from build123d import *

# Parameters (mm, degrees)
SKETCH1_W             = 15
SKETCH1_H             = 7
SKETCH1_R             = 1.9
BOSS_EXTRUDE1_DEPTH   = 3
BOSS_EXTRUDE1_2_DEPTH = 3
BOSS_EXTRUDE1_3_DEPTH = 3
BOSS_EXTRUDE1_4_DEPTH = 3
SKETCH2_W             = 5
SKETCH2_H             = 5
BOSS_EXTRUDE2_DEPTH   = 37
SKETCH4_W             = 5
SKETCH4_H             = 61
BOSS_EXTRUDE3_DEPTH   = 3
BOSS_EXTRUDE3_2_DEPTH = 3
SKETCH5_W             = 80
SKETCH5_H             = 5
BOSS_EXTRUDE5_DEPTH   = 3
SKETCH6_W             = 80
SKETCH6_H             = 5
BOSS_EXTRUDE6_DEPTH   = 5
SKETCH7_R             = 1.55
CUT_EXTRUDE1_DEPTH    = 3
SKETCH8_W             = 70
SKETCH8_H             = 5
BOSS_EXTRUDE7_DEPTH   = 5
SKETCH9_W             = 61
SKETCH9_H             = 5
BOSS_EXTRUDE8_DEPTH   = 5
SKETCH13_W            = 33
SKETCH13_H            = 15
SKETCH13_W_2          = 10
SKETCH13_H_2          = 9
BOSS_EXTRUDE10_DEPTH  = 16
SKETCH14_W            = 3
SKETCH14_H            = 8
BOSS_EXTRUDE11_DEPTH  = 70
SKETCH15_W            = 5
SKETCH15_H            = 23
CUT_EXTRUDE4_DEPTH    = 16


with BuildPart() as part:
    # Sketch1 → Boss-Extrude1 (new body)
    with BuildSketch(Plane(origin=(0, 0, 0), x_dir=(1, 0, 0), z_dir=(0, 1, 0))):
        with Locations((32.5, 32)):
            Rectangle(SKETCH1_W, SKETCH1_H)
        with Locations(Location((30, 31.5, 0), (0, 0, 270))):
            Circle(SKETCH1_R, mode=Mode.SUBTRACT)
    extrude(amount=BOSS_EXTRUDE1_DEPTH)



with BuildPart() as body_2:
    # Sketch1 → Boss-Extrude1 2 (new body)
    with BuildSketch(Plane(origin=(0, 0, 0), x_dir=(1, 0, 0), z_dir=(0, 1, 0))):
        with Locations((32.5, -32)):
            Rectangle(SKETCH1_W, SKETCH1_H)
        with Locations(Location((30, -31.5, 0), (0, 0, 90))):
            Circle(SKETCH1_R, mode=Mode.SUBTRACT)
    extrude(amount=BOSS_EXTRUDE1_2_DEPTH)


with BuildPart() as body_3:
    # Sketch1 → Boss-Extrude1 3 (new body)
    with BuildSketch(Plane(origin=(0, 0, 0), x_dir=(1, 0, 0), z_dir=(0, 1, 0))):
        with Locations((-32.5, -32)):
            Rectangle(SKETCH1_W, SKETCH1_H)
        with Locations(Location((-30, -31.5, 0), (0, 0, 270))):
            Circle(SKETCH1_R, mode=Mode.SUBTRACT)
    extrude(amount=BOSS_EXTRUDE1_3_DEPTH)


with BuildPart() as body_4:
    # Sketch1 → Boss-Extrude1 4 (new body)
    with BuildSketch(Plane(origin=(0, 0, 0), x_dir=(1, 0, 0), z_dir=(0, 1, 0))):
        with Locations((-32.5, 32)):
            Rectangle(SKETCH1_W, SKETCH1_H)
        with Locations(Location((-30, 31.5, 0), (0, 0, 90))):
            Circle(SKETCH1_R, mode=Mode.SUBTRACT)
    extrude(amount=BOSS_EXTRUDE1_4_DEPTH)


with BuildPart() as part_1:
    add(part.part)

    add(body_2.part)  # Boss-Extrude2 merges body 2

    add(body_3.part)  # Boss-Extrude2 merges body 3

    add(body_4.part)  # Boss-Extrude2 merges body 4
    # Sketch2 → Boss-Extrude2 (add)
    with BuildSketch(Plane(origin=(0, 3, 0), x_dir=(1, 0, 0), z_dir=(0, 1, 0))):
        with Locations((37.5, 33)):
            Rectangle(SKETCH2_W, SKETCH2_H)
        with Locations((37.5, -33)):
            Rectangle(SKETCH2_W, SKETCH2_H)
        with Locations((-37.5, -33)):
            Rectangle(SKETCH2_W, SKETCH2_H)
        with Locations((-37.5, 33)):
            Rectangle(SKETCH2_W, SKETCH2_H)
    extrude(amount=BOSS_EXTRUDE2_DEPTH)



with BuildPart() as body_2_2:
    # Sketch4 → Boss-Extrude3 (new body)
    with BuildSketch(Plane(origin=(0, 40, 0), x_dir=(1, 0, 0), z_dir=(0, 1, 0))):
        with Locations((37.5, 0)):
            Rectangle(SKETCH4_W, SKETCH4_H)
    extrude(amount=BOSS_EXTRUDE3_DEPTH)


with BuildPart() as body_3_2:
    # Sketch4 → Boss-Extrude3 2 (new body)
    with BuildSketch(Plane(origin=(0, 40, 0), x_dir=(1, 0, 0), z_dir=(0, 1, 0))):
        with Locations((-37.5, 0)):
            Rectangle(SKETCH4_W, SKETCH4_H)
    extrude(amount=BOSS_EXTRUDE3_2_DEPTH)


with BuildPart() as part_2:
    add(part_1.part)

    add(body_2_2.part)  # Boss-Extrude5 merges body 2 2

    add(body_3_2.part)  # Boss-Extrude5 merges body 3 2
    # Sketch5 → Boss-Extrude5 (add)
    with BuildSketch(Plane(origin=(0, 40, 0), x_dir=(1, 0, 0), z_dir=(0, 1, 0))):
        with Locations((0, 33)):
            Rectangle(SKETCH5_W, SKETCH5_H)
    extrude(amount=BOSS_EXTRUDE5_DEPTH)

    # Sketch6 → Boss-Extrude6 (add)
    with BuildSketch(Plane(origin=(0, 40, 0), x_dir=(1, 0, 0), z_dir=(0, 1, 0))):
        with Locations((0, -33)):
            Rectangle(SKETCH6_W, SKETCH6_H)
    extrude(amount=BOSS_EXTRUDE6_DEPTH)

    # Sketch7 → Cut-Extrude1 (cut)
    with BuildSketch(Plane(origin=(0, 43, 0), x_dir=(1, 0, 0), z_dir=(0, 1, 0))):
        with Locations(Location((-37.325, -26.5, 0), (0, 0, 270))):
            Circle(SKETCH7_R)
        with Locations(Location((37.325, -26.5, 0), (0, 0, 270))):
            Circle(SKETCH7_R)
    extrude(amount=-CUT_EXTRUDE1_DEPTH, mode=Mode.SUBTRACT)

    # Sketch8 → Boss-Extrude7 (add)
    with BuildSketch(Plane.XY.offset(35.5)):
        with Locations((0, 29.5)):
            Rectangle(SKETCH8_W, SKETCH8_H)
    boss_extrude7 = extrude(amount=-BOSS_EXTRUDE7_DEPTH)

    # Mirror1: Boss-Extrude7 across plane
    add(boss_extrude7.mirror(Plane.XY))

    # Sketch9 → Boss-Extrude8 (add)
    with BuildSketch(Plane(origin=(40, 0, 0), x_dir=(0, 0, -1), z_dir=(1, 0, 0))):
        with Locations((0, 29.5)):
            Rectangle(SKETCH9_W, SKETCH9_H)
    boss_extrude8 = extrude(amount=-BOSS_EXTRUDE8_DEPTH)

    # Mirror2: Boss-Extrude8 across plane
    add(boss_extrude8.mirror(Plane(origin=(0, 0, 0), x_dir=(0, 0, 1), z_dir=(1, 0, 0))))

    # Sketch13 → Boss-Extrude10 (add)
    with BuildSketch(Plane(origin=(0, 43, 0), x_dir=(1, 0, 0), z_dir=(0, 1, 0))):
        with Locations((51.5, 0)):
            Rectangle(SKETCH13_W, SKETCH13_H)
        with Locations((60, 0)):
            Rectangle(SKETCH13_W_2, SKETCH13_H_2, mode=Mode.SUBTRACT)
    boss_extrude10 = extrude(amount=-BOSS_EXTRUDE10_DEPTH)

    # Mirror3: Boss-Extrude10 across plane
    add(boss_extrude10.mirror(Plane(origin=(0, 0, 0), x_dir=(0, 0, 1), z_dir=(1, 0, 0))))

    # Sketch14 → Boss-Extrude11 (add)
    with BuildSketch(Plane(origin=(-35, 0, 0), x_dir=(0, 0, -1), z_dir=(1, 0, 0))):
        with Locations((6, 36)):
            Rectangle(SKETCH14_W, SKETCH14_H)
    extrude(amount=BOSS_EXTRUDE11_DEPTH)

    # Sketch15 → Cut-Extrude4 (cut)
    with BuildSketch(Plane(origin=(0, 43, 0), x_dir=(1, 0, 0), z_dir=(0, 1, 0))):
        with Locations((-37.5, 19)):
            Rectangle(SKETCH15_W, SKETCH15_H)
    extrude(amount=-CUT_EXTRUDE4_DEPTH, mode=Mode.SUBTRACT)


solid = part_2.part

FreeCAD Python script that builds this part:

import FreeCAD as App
import Part
import Sketcher

V = App.Vector


def add_polygon(sketch, points):
    """Adds a closed chain of lines whose ends are joined by coincident constraints."""
    first, n = sketch.GeometryCount, len(points)
    for a, b in zip(points, points[1:] + points[:1]):
        sketch.addGeometry(Part.LineSegment(App.Vector(*a, 0), App.Vector(*b, 0)), False)
    for i in range(n):
        sketch.addConstraint(Sketcher.Constraint("Coincident", first + i, 2, first + (i + 1) % n, 1))

doc = App.newDocument("Part")
params = doc.addObject("Spreadsheet::Sheet", "Params")
for row, (alias, value) in enumerate([
    ("sketch1_diameter", "3.8 mm"),
    ("sketch1_width", "15 mm"),
    ("sketch1_height", "7 mm"),
    ("pad1_length", "3 mm"),
    ("sketch2_diameter", "3.8 mm"),
    ("sketch2_width", "15 mm"),
    ("sketch2_height", "7 mm"),
    ("pad2_length", "3 mm"),
    ("sketch3_diameter", "3.8 mm"),
    ("sketch3_width", "15 mm"),
    ("sketch3_height", "7 mm"),
    ("pad3_length", "3 mm"),
    ("sketch4_diameter", "3.8 mm"),
    ("sketch4_width", "15 mm"),
    ("sketch4_height", "7 mm"),
    ("pad4_length", "3 mm"),
    ("sketch5_width", "5 mm"),
    ("pad5_length", "37 mm"),
    ("sketch6_width", "5 mm"),
    ("sketch6_height", "61 mm"),
    ("pad6_length", "3 mm"),
    ("sketch7_width", "5 mm"),
    ("sketch7_height", "61 mm"),
    ("pad7_length", "3 mm"),
    ("sketch8_width", "80 mm"),
    ("sketch8_height", "5 mm"),
    ("pad8_length", "3 mm"),
    ("sketch9_width", "80 mm"),
    ("sketch9_height", "5 mm"),
    ("pad9_length", "5 mm"),
    ("sketch10_diameter", "3.1 mm"),
    ("pocket1_length", "3 mm"),
    ("sketch11_width", "70 mm"),
    ("sketch11_height", "5 mm"),
    ("pad10_length", "5 mm"),
    ("sketch12_width", "5 mm"),
    ("sketch12_height", "61 mm"),
    ("pad11_length", "5 mm"),
    ("sketch13_width", "33 mm"),
    ("sketch13_width2", "10 mm"),
    ("sketch13_height", "15 mm"),
    ("sketch13_height2", "9 mm"),
    ("pad12_length", "16 mm"),
    ("sketch14_width", "8 mm"),
    ("sketch14_height", "3 mm"),
    ("pad13_length", "70 mm"),
    ("sketch15_width", "5 mm"),
    ("sketch15_height", "23 mm"),
    ("pocket2_length", "16 mm"),
], start=1):
    params.set(f"A{row}", alias)
    params.set(f"B{row}", "=" + value)
    params.setAlias(f"B{row}", alias)

body = doc.addObject("PartDesign::Body", "Body")

# Sketch on XZ plane
sketch1 = body.newObject("Sketcher::SketchObject", "Sketch")
sketch1.AttachmentSupport = (doc.getObject("XZ_Plane"), [""])
sketch1.MapMode = "FlatFace"
add_polygon(sketch1, [(25, -35.5), (25, -28.5), (40, -28.5), (40, -35.5)])  # lines 0-3
sketch1.addGeometry(Part.Circle(V(30, -31.5, 0), V(0, 0, 1), 1.9), False)  # 4
sketch1.addConstraint(Sketcher.Constraint("Vertical", 0))
sketch1.addConstraint(Sketcher.Constraint("Horizontal", 1))
sketch1.addConstraint(Sketcher.Constraint("Vertical", 2))
sketch1.addConstraint(Sketcher.Constraint("Horizontal", 3))
sketch1.addConstraint(Sketcher.Constraint("Diameter", 4, 3.8))
sketch1.addConstraint(Sketcher.Constraint("DistanceX", 1, 1, 1, 2, 15.0))
sketch1.addConstraint(Sketcher.Constraint("DistanceY", 0, 1, 0, 2, 7.0))
sketch1.addConstraint(Sketcher.Constraint("DistanceX", -1, 1, 4, 3, 30.0))
sketch1.addConstraint(Sketcher.Constraint("DistanceX", -1, 1, 0, 2, 25.0))
sketch1.addConstraint(Sketcher.Constraint("DistanceY", 4, 3, 0, 2, 3.0))
sketch1.addConstraint(Sketcher.Constraint("DistanceY", 4, 3, -1, 1, 31.5))
sketch1.setExpression("Constraints[8]", "Params.sketch1_diameter")
sketch1.setExpression("Constraints[9]", "Params.sketch1_width")
sketch1.setExpression("Constraints[10]", "Params.sketch1_height")
pad1 = body.newObject("PartDesign::Pad", "Pad")
pad1.Profile = sketch1
pad1.setExpression("Length", "Params.pad1_length")
pad1.Reversed = True
body2 = doc.addObject("PartDesign::Body", "Body001")

# Sketch on XZ plane
sketch2 = body2.newObject("Sketcher::SketchObject", "Sketch001")
sketch2.AttachmentSupport = (doc.getObject("XZ_Plane001"), [""])
sketch2.MapMode = "FlatFace"
add_polygon(sketch2, [(25, 28.5), (25, 35.5), (40, 35.5), (40, 28.5)])  # lines 0-3
sketch2.addGeometry(Part.Circle(V(30, 31.5, 0), V(0, 0, 1), 1.9), False)  # 4
sketch2.addConstraint(Sketcher.Constraint("Vertical", 0))
sketch2.addConstraint(Sketcher.Constraint("Horizontal", 1))
sketch2.addConstraint(Sketcher.Constraint("Vertical", 2))
sketch2.addConstraint(Sketcher.Constraint("Horizontal", 3))
sketch2.addConstraint(Sketcher.Constraint("Diameter", 4, 3.8))
sketch2.addConstraint(Sketcher.Constraint("DistanceX", 1, 1, 1, 2, 15.0))
sketch2.addConstraint(Sketcher.Constraint("DistanceY", 0, 1, 0, 2, 7.0))
sketch2.addConstraint(Sketcher.Constraint("DistanceX", -1, 1, 4, 3, 30.0))
sketch2.addConstraint(Sketcher.Constraint("DistanceX", -1, 1, 0, 2, 25.0))
sketch2.addConstraint(Sketcher.Constraint("DistanceY", 4, 3, 0, 2, 4.0))
sketch2.addConstraint(Sketcher.Constraint("DistanceY", -1, 1, 4, 3, 31.5))
sketch2.setExpression("Constraints[8]", "Params.sketch2_diameter")
sketch2.setExpression("Constraints[9]", "Params.sketch2_width")
sketch2.setExpression("Constraints[10]", "Params.sketch2_height")
pad2 = body2.newObject("PartDesign::Pad", "Pad001")
pad2.Profile = sketch2
pad2.setExpression("Length", "Params.pad2_length")
pad2.Reversed = True
body3 = doc.addObject("PartDesign::Body", "Body002")

# Sketch on XZ plane
sketch3 = body3.newObject("Sketcher::SketchObject", "Sketch002")
sketch3.AttachmentSupport = (doc.getObject("XZ_Plane002"), [""])
sketch3.MapMode = "FlatFace"
add_polygon(sketch3, [(-40, 28.5), (-40, 35.5), (-25, 35.5), (-25, 28.5)])  # lines 0-3
sketch3.addGeometry(Part.Circle(V(-30, 31.5, 0), V(0, 0, 1), 1.9), False)  # 4
sketch3.addConstraint(Sketcher.Constraint("Vertical", 0))
sketch3.addConstraint(Sketcher.Constraint("Horizontal", 1))
sketch3.addConstraint(Sketcher.Constraint("Vertical", 2))
sketch3.addConstraint(Sketcher.Constraint("Horizontal", 3))
sketch3.addConstraint(Sketcher.Constraint("Diameter", 4, 3.8))
sketch3.addConstraint(Sketcher.Constraint("DistanceX", 1, 1, 1, 2, 15.0))
sketch3.addConstraint(Sketcher.Constraint("DistanceY", 0, 1, 0, 2, 7.0))
sketch3.addConstraint(Sketcher.Constraint("DistanceX", 4, 3, -1, 1, 30.0))
sketch3.addConstraint(Sketcher.Constraint("DistanceX", 0, 2, -1, 1, 40.0))
sketch3.addConstraint(Sketcher.Constraint("DistanceY", 4, 3, 0, 2, 4.0))
sketch3.addConstraint(Sketcher.Constraint("DistanceY", -1, 1, 4, 3, 31.5))
sketch3.setExpression("Constraints[8]", "Params.sketch3_diameter")
sketch3.setExpression("Constraints[9]", "Params.sketch3_width")
sketch3.setExpression("Constraints[10]", "Params.sketch3_height")
pad3 = body3.newObject("PartDesign::Pad", "Pad002")
pad3.Profile = sketch3
pad3.setExpression("Length", "Params.pad3_length")
pad3.Reversed = True
body4 = doc.addObject("PartDesign::Body", "Body003")

# Sketch on XZ plane
sketch4 = body4.newObject("Sketcher::SketchObject", "Sketch003")
sketch4.AttachmentSupport = (doc.getObject("XZ_Plane003"), [""])
sketch4.MapMode = "FlatFace"
add_polygon(sketch4, [(-40, -35.5), (-40, -28.5), (-25, -28.5), (-25, -35.5)])  # lines 0-3
sketch4.addGeometry(Part.Circle(V(-30, -31.5, 0), V(0, 0, 1), 1.9), False)  # 4
sketch4.addConstraint(Sketcher.Constraint("Vertical", 0))
sketch4.addConstraint(Sketcher.Constraint("Horizontal", 1))
sketch4.addConstraint(Sketcher.Constraint("Vertical", 2))
sketch4.addConstraint(Sketcher.Constraint("Horizontal", 3))
sketch4.addConstraint(Sketcher.Constraint("Diameter", 4, 3.8))
sketch4.addConstraint(Sketcher.Constraint("DistanceX", 1, 1, 1, 2, 15.0))
sketch4.addConstraint(Sketcher.Constraint("DistanceY", 0, 1, 0, 2, 7.0))
sketch4.addConstraint(Sketcher.Constraint("DistanceX", 4, 3, -1, 1, 30.0))
sketch4.addConstraint(Sketcher.Constraint("DistanceX", 0, 2, -1, 1, 40.0))
sketch4.addConstraint(Sketcher.Constraint("DistanceY", 4, 3, 0, 2, 3.0))
sketch4.addConstraint(Sketcher.Constraint("DistanceY", 4, 3, -1, 1, 31.5))
sketch4.setExpression("Constraints[8]", "Params.sketch4_diameter")
sketch4.setExpression("Constraints[9]", "Params.sketch4_width")
sketch4.setExpression("Constraints[10]", "Params.sketch4_height")
pad4 = body4.newObject("PartDesign::Pad", "Pad003")
pad4.Profile = sketch4
pad4.setExpression("Length", "Params.pad4_length")
pad4.Reversed = True
body.AllowCompound = True
doc.recompute()

boolean = body.newObject("PartDesign::Boolean", "Boolean")
boolean.Type = "Fuse"
boolean.addObjects([body2])
doc.recompute()

boolean2 = body.newObject("PartDesign::Boolean", "Boolean001")
boolean2.Type = "Fuse"
boolean2.addObjects([body3])
doc.recompute()

boolean3 = body.newObject("PartDesign::Boolean", "Boolean002")
boolean3.Type = "Fuse"
boolean3.addObjects([body4])

# Sketch on XZ plane
sketch5 = body.newObject("Sketcher::SketchObject", "Sketch004")
sketch5.AttachmentSupport = (doc.getObject("XZ_Plane"), [""])
sketch5.MapMode = "FlatFace"
sketch5.AttachmentOffset = App.Placement(V(0, 0, -3), App.Rotation())
add_polygon(sketch5, [(35, -36), (35, -30), (40, -30), (40, -36)])  # lines 0-3
add_polygon(sketch5, [(35, 30), (35, 36), (40, 36), (40, 30)])  # lines 4-7
add_polygon(sketch5, [(-40, 30), (-40, 36), (-35, 36), (-35, 30)])  # lines 8-11
add_polygon(sketch5, [(-40, -36), (-40, -30), (-35, -30), (-35, -36)])  # lines 12-15
sketch5.addConstraint(Sketcher.Constraint("Vertical", 0))
sketch5.addConstraint(Sketcher.Constraint("Horizontal", 1))
sketch5.addConstraint(Sketcher.Constraint("Vertical", 2))
sketch5.addConstraint(Sketcher.Constraint("Horizontal", 3))
sketch5.addConstraint(Sketcher.Constraint("Vertical", 4))
sketch5.addConstraint(Sketcher.Constraint("Horizontal", 5))
sketch5.addConstraint(Sketcher.Constraint("Vertical", 6))
sketch5.addConstraint(Sketcher.Constraint("Horizontal", 7))
sketch5.addConstraint(Sketcher.Constraint("Vertical", 8))
sketch5.addConstraint(Sketcher.Constraint("Horizontal", 9))
sketch5.addConstraint(Sketcher.Constraint("Vertical", 10))
sketch5.addConstraint(Sketcher.Constraint("Horizontal", 11))
sketch5.addConstraint(Sketcher.Constraint("Vertical", 12))
sketch5.addConstraint(Sketcher.Constraint("Horizontal", 13))
sketch5.addConstraint(Sketcher.Constraint("Vertical", 14))
sketch5.addConstraint(Sketcher.Constraint("Horizontal", 15))
sketch5.addConstraint(Sketcher.Constraint("Symmetric", 2, 2, 8, 2, -1, 1))
sketch5.addConstraint(Sketcher.Constraint("Symmetric", 0, 2, 10, 2, -1, 1))
sketch5.addConstraint(Sketcher.Constraint("Symmetric", 6, 2, 12, 2, -1, 1))
sketch5.addConstraint(Sketcher.Constraint("Symmetric", 4, 2, 14, 2, -1, 1))
sketch5.addConstraint(Sketcher.Constraint("Symmetric", 5, 2, 8, 2, -2))
sketch5.addConstraint(Sketcher.Constraint("Symmetric", 7, 2, 10, 2, -2))
sketch5.addConstraint(Sketcher.Constraint("Equal", 15, 0))
sketch5.addConstraint(Sketcher.Constraint("DistanceX", 1, 1, 1, 2, 5.0))
sketch5.addConstraint(Sketcher.Constraint("DistanceX", -1, 1, 0, 2, 35.0))
sketch5.addConstraint(Sketcher.Constraint("DistanceY", 0, 2, 4, 2, 66.0))
sketch5.setExpression("Constraints[39]", "Params.sketch5_width")
pad5 = body.newObject("PartDesign::Pad", "Pad004")
pad5.Profile = sketch5
pad5.setExpression("Length", "Params.pad5_length")
pad5.Reversed = True
body5 = doc.addObject("PartDesign::Body", "Body004")

# Sketch on XZ plane
sketch6 = body5.newObject("Sketcher::SketchObject", "Sketch005")
sketch6.AttachmentSupport = (doc.getObject("XZ_Plane004"), [""])
sketch6.MapMode = "FlatFace"
sketch6.AttachmentOffset = App.Placement(V(0, 0, -40), App.Rotation())
add_polygon(sketch6, [(35, -30), (35, 30), (40, 30), (40, -30)])  # lines 0-3
sketch6.addConstraint(Sketcher.Constraint("Vertical", 0))
sketch6.addConstraint(Sketcher.Constraint("Horizontal", 1))
sketch6.addConstraint(Sketcher.Constraint("Vertical", 2))
sketch6.addConstraint(Sketcher.Constraint("Horizontal", 3))
sketch6.addConstraint(Sketcher.Constraint("DistanceX", 1, 1, 1, 2, 5.0))
sketch6.addConstraint(Sketcher.Constraint("DistanceY", 0, 1, 0, 2, 61.0))
sketch6.addConstraint(Sketcher.Constraint("DistanceX", -1, 1, 0, 2, 35.0))
sketch6.addConstraint(Sketcher.Constraint("DistanceY", -1, 1, 0, 2, 30.5))
sketch6.setExpression("Constraints[8]", "Params.sketch6_width")
sketch6.setExpression("Constraints[9]", "Params.sketch6_height")
pad6 = body5.newObject("PartDesign::Pad", "Pad005")
pad6.Profile = sketch6
pad6.setExpression("Length", "Params.pad6_length")
pad6.Reversed = True
body6 = doc.addObject("PartDesign::Body", "Body005")

# Sketch on XZ plane
sketch7 = body6.newObject("Sketcher::SketchObject", "Sketch006")
sketch7.AttachmentSupport = (doc.getObject("XZ_Plane005"), [""])
sketch7.MapMode = "FlatFace"
sketch7.AttachmentOffset = App.Placement(V(0, 0, -40), App.Rotation())
add_polygon(sketch7, [(-40, -30), (-40, 30), (-35, 30), (-35, -30)])  # lines 0-3
sketch7.addConstraint(Sketcher.Constraint("Vertical", 0))
sketch7.addConstraint(Sketcher.Constraint("Horizontal", 1))
sketch7.addConstraint(Sketcher.Constraint("Vertical", 2))
sketch7.addConstraint(Sketcher.Constraint("Horizontal", 3))
sketch7.addConstraint(Sketcher.Constraint("DistanceX", 1, 1, 1, 2, 5.0))
sketch7.addConstraint(Sketcher.Constraint("DistanceY", 0, 1, 0, 2, 61.0))
sketch7.addConstraint(Sketcher.Constraint("DistanceX", 0, 2, -1, 1, 40.0))
sketch7.addConstraint(Sketcher.Constraint("DistanceY", -1, 1, 0, 2, 30.5))
sketch7.setExpression("Constraints[8]", "Params.sketch7_width")
sketch7.setExpression("Constraints[9]", "Params.sketch7_height")
pad7 = body6.newObject("PartDesign::Pad", "Pad006")
pad7.Profile = sketch7
pad7.setExpression("Length", "Params.pad7_length")
pad7.Reversed = True
body.AllowCompound = True
doc.recompute()

boolean4 = body.newObject("PartDesign::Boolean", "Boolean003")
boolean4.Type = "Fuse"
boolean4.addObjects([body5])
doc.recompute()

boolean5 = body.newObject("PartDesign::Boolean", "Boolean004")
boolean5.Type = "Fuse"
boolean5.addObjects([body6])

# Sketch on XZ plane
sketch8 = body.newObject("Sketcher::SketchObject", "Sketch007")
sketch8.AttachmentSupport = (doc.getObject("XZ_Plane"), [""])
sketch8.MapMode = "FlatFace"
sketch8.AttachmentOffset = App.Placement(V(0, 0, -40), App.Rotation())
add_polygon(sketch8, [(-40, -36), (-40, -30), (40, -30), (40, -36)])  # lines 0-3
sketch8.addConstraint(Sketcher.Constraint("Vertical", 0))
sketch8.addConstraint(Sketcher.Constraint("Horizontal", 1))
sketch8.addConstraint(Sketcher.Constraint("Vertical", 2))
sketch8.addConstraint(Sketcher.Constraint("Horizontal", 3))
sketch8.addConstraint(Sketcher.Constraint("DistanceX", 1, 1, 1, 2, 80.0))
sketch8.addConstraint(Sketcher.Constraint("DistanceY", 0, 1, 0, 2, 5.0))
sketch8.addConstraint(Sketcher.Constraint("DistanceX", 0, 2, -1, 1, 40.0))
sketch8.addConstraint(Sketcher.Constraint("DistanceY", 0, 2, -1, 1, 30.5))
sketch8.setExpression("Constraints[8]", "Params.sketch8_width")
sketch8.setExpression("Constraints[9]", "Params.sketch8_height")
pad8 = body.newObject("PartDesign::Pad", "Pad007")
pad8.Profile = sketch8
pad8.setExpression("Length", "Params.pad8_length")
pad8.Reversed = True

# Sketch on XZ plane
sketch9 = body.newObject("Sketcher::SketchObject", "Sketch008")
sketch9.AttachmentSupport = (doc.getObject("XZ_Plane"), [""])
sketch9.MapMode = "FlatFace"
sketch9.AttachmentOffset = App.Placement(V(0, 0, -40), App.Rotation())
add_polygon(sketch9, [(-40, 30), (-40, 36), (40, 36), (40, 30)])  # lines 0-3
sketch9.addConstraint(Sketcher.Constraint("Vertical", 0))
sketch9.addConstraint(Sketcher.Constraint("Horizontal", 1))
sketch9.addConstraint(Sketcher.Constraint("Vertical", 2))
sketch9.addConstraint(Sketcher.Constraint("Horizontal", 3))
sketch9.addConstraint(Sketcher.Constraint("DistanceX", 1, 1, 1, 2, 80.0))
sketch9.addConstraint(Sketcher.Constraint("DistanceY", 0, 1, 0, 2, 5.0))
sketch9.addConstraint(Sketcher.Constraint("DistanceX", 0, 2, -1, 1, 40.0))
sketch9.addConstraint(Sketcher.Constraint("DistanceY", -1, 1, 0, 2, 35.5))
sketch9.setExpression("Constraints[8]", "Params.sketch9_width")
sketch9.setExpression("Constraints[9]", "Params.sketch9_height")
pad9 = body.newObject("PartDesign::Pad", "Pad008")
pad9.Profile = sketch9
pad9.setExpression("Length", "Params.pad9_length")
pad9.Reversed = True

# Sketch on XZ plane
sketch10 = body.newObject("Sketcher::SketchObject", "Sketch009")
sketch10.AttachmentSupport = (doc.getObject("XZ_Plane"), [""])
sketch10.MapMode = "FlatFace"
sketch10.AttachmentOffset = App.Placement(V(0, 0, -43), App.Rotation())
sketch10.addGeometry(Part.Circle(V(-37.3, 26.5, 0), V(0, 0, 1), 1.6), False)
sketch10.addGeometry(Part.Circle(V(37.3, 26.5, 0), V(0, 0, 1), 1.6), False)
sketch10.addConstraint(Sketcher.Constraint("Equal", 0, 1))
sketch10.addConstraint(Sketcher.Constraint("Symmetric", 0, 3, 1, 3, -2))
sketch10.addConstraint(Sketcher.Constraint("Diameter", 0, 3.1))
sketch10.addConstraint(Sketcher.Constraint("DistanceY", -1, 1, 0, 3, 26.5))
sketch10.addConstraint(Sketcher.Constraint("DistanceX", 0, 3, 1, 3, 74.65))
sketch10.setExpression("Constraints[2]", "Params.sketch10_diameter")
pocket1 = body.newObject("PartDesign::Pocket", "Pocket")
pocket1.Profile = sketch10
pocket1.setExpression("Length", "Params.pocket1_length")
pocket1.Reversed = True

# Sketch on XY plane
sketch11 = body.newObject("Sketcher::SketchObject", "Sketch010")
sketch11.AttachmentSupport = (doc.getObject("XY_Plane"), [""])
sketch11.MapMode = "FlatFace"
sketch11.AttachmentOffset = App.Placement(V(0, 0, 35.5), App.Rotation())
add_polygon(sketch11, [(-35, 32), (-35, 27), (35, 27), (35, 32)])  # lines 0-3
sketch11.addConstraint(Sketcher.Constraint("Vertical", 0))
sketch11.addConstraint(Sketcher.Constraint("Horizontal", 1))
sketch11.addConstraint(Sketcher.Constraint("Vertical", 2))
sketch11.addConstraint(Sketcher.Constraint("Horizontal", 3))
sketch11.addConstraint(Sketcher.Constraint("DistanceX", 1, 1, 1, 2, 70.0))
sketch11.addConstraint(Sketcher.Constraint("DistanceY", 0, 2, 0, 1, 5.0))
sketch11.addConstraint(Sketcher.Constraint("DistanceX", 0, 2, -1, 1, 35.0))
sketch11.addConstraint(Sketcher.Constraint("DistanceY", -1, 1, 0, 2, 27.0))
sketch11.setExpression("Constraints[8]", "Params.sketch11_width")
sketch11.setExpression("Constraints[9]", "Params.sketch11_height")
pad10 = body.newObject("PartDesign::Pad", "Pad009")
pad10.Profile = sketch11
pad10.setExpression("Length", "Params.pad10_length")
pad10.Reversed = True
doc.recompute()

mirrored = body.newObject("PartDesign::Mirrored", "Mirrored")
mirrored.Originals = [pad10]
mirrored.MirrorPlane = (doc.getObject("XY_Plane"), [""])
body.Tip = mirrored

# Sketch on YZ plane
sketch12 = body.newObject("Sketcher::SketchObject", "Sketch011")
sketch12.AttachmentSupport = (doc.getObject("YZ_Plane"), [""])
sketch12.MapMode = "FlatFace"
sketch12.AttachmentOffset = App.Placement(V(0, 0, 40), App.Rotation())
add_polygon(sketch12, [(32, 30), (27, 30), (27, -30), (32, -30)])  # lines 0-3
sketch12.addConstraint(Sketcher.Constraint("Horizontal", 0))
sketch12.addConstraint(Sketcher.Constraint("Vertical", 1))
sketch12.addConstraint(Sketcher.Constraint("Horizontal", 2))
sketch12.addConstraint(Sketcher.Constraint("Vertical", 3))
sketch12.addConstraint(Sketcher.Constraint("DistanceX", 0, 2, 0, 1, 5.0))
sketch12.addConstraint(Sketcher.Constraint("DistanceY", 1, 2, 1, 1, 61.0))
sketch12.addConstraint(Sketcher.Constraint("DistanceX", -1, 1, 0, 2, 27.0))
sketch12.addConstraint(Sketcher.Constraint("DistanceY", -1, 1, 0, 2, 30.5))
sketch12.setExpression("Constraints[8]", "Params.sketch12_width")
sketch12.setExpression("Constraints[9]", "Params.sketch12_height")
pad11 = body.newObject("PartDesign::Pad", "Pad010")
pad11.Profile = sketch12
pad11.setExpression("Length", "Params.pad11_length")
pad11.Reversed = True
doc.recompute()

mirrored2 = body.newObject("PartDesign::Mirrored", "Mirrored001")
mirrored2.Originals = [pad11]
mirrored2.MirrorPlane = (doc.getObject("YZ_Plane"), [""])
body.Tip = mirrored2

# Sketch on XZ plane
sketch13 = body.newObject("Sketcher::SketchObject", "Sketch012")
sketch13.AttachmentSupport = (doc.getObject("XZ_Plane"), [""])
sketch13.MapMode = "FlatFace"
sketch13.AttachmentOffset = App.Placement(V(0, 0, -43), App.Rotation())
add_polygon(sketch13, [(35, -8), (35, 8), (68, 8), (68, -8)])  # lines 0-3
add_polygon(sketch13, [(65, 4), (55, 4), (55, -4), (65, -4)])  # lines 4-7
sketch13.addConstraint(Sketcher.Constraint("Vertical", 0))
sketch13.addConstraint(Sketcher.Constraint("Horizontal", 1))
sketch13.addConstraint(Sketcher.Constraint("Vertical", 2))
sketch13.addConstraint(Sketcher.Constraint("Horizontal", 3))
sketch13.addConstraint(Sketcher.Constraint("Horizontal", 4))
sketch13.addConstraint(Sketcher.Constraint("Vertical", 5))
sketch13.addConstraint(Sketcher.Constraint("Horizontal", 6))
sketch13.addConstraint(Sketcher.Constraint("Vertical", 7))
sketch13.addConstraint(Sketcher.Constraint("DistanceX", 1, 1, 1, 2, 33.0))
sketch13.addConstraint(Sketcher.Constraint("DistanceX", 4, 2, 4, 1, 10.0))
sketch13.addConstraint(Sketcher.Constraint("DistanceY", 0, 1, 0, 2, 15.0))
sketch13.addConstraint(Sketcher.Constraint("DistanceY", 5, 2, 5, 1, 9.0))
sketch13.addConstraint(Sketcher.Constraint("DistanceX", -1, 1, 0, 2, 35.0))
sketch13.addConstraint(Sketcher.Constraint("DistanceX", -1, 1, 4, 2, 55.0))
sketch13.addConstraint(Sketcher.Constraint("DistanceY", 4, 2, 1, 2, 3.0))
sketch13.addConstraint(Sketcher.Constraint("DistanceY", -1, 1, 0, 2, 7.5))
sketch13.setExpression("Constraints[16]", "Params.sketch13_width")
sketch13.setExpression("Constraints[17]", "Params.sketch13_width2")
sketch13.setExpression("Constraints[18]", "Params.sketch13_height")
sketch13.setExpression("Constraints[19]", "Params.sketch13_height2")
pad12 = body.newObject("PartDesign::Pad", "Pad011")
pad12.Profile = sketch13
pad12.setExpression("Length", "Params.pad12_length")
doc.recompute()

mirrored3 = body.newObject("PartDesign::Mirrored", "Mirrored002")
mirrored3.Originals = [pad12]
mirrored3.MirrorPlane = (doc.getObject("YZ_Plane"), [""])
body.Tip = mirrored3

# Sketch on YZ plane
sketch14 = body.newObject("Sketcher::SketchObject", "Sketch013")
sketch14.AttachmentSupport = (doc.getObject("YZ_Plane"), [""])
sketch14.MapMode = "FlatFace"
sketch14.AttachmentOffset = App.Placement(V(0, 0, -35), App.Rotation())
add_polygon(sketch14, [(40, -4.5), (32, -4.5), (32, -7.5), (40, -7.5)])  # lines 0-3
sketch14.addConstraint(Sketcher.Constraint("Horizontal", 0))
sketch14.addConstraint(Sketcher.Constraint("Vertical", 1))
sketch14.addConstraint(Sketcher.Constraint("Horizontal", 2))
sketch14.addConstraint(Sketcher.Constraint("Vertical", 3))
sketch14.addConstraint(Sketcher.Constraint("DistanceX", 0, 2, 0, 1, 8.0))
sketch14.addConstraint(Sketcher.Constraint("DistanceY", 1, 2, 1, 1, 3.0))
sketch14.addConstraint(Sketcher.Constraint("DistanceX", -1, 1, 0, 2, 32.0))
sketch14.addConstraint(Sketcher.Constraint("DistanceY", 0, 2, -1, 1, 4.5))
sketch14.setExpression("Constraints[8]", "Params.sketch14_width")
sketch14.setExpression("Constraints[9]", "Params.sketch14_height")
pad13 = body.newObject("PartDesign::Pad", "Pad012")
pad13.Profile = sketch14
pad13.setExpression("Length", "Params.pad13_length")

# Sketch on XZ plane
sketch15 = body.newObject("Sketcher::SketchObject", "Sketch014")
sketch15.AttachmentSupport = (doc.getObject("XZ_Plane"), [""])
sketch15.MapMode = "FlatFace"
sketch15.AttachmentOffset = App.Placement(V(0, 0, -43), App.Rotation())
add_polygon(sketch15, [(-40, -30), (-40, -8), (-35, -8), (-35, -30)])  # lines 0-3
sketch15.addConstraint(Sketcher.Constraint("Vertical", 0))
sketch15.addConstraint(Sketcher.Constraint("Horizontal", 1))
sketch15.addConstraint(Sketcher.Constraint("Vertical", 2))
sketch15.addConstraint(Sketcher.Constraint("Horizontal", 3))
sketch15.addConstraint(Sketcher.Constraint("DistanceX", 1, 1, 1, 2, 5.0))
sketch15.addConstraint(Sketcher.Constraint("DistanceY", 0, 1, 0, 2, 23.0))
sketch15.addConstraint(Sketcher.Constraint("DistanceX", 0, 2, -1, 1, 40.0))
sketch15.addConstraint(Sketcher.Constraint("DistanceY", 0, 2, -1, 1, 7.5))
sketch15.setExpression("Constraints[8]", "Params.sketch15_width")
sketch15.setExpression("Constraints[9]", "Params.sketch15_height")
pocket2 = body.newObject("PartDesign::Pocket", "Pocket001")
pocket2.Profile = sketch15
pocket2.setExpression("Length", "Params.pocket2_length")
pocket2.Reversed = True

doc.recompute()
